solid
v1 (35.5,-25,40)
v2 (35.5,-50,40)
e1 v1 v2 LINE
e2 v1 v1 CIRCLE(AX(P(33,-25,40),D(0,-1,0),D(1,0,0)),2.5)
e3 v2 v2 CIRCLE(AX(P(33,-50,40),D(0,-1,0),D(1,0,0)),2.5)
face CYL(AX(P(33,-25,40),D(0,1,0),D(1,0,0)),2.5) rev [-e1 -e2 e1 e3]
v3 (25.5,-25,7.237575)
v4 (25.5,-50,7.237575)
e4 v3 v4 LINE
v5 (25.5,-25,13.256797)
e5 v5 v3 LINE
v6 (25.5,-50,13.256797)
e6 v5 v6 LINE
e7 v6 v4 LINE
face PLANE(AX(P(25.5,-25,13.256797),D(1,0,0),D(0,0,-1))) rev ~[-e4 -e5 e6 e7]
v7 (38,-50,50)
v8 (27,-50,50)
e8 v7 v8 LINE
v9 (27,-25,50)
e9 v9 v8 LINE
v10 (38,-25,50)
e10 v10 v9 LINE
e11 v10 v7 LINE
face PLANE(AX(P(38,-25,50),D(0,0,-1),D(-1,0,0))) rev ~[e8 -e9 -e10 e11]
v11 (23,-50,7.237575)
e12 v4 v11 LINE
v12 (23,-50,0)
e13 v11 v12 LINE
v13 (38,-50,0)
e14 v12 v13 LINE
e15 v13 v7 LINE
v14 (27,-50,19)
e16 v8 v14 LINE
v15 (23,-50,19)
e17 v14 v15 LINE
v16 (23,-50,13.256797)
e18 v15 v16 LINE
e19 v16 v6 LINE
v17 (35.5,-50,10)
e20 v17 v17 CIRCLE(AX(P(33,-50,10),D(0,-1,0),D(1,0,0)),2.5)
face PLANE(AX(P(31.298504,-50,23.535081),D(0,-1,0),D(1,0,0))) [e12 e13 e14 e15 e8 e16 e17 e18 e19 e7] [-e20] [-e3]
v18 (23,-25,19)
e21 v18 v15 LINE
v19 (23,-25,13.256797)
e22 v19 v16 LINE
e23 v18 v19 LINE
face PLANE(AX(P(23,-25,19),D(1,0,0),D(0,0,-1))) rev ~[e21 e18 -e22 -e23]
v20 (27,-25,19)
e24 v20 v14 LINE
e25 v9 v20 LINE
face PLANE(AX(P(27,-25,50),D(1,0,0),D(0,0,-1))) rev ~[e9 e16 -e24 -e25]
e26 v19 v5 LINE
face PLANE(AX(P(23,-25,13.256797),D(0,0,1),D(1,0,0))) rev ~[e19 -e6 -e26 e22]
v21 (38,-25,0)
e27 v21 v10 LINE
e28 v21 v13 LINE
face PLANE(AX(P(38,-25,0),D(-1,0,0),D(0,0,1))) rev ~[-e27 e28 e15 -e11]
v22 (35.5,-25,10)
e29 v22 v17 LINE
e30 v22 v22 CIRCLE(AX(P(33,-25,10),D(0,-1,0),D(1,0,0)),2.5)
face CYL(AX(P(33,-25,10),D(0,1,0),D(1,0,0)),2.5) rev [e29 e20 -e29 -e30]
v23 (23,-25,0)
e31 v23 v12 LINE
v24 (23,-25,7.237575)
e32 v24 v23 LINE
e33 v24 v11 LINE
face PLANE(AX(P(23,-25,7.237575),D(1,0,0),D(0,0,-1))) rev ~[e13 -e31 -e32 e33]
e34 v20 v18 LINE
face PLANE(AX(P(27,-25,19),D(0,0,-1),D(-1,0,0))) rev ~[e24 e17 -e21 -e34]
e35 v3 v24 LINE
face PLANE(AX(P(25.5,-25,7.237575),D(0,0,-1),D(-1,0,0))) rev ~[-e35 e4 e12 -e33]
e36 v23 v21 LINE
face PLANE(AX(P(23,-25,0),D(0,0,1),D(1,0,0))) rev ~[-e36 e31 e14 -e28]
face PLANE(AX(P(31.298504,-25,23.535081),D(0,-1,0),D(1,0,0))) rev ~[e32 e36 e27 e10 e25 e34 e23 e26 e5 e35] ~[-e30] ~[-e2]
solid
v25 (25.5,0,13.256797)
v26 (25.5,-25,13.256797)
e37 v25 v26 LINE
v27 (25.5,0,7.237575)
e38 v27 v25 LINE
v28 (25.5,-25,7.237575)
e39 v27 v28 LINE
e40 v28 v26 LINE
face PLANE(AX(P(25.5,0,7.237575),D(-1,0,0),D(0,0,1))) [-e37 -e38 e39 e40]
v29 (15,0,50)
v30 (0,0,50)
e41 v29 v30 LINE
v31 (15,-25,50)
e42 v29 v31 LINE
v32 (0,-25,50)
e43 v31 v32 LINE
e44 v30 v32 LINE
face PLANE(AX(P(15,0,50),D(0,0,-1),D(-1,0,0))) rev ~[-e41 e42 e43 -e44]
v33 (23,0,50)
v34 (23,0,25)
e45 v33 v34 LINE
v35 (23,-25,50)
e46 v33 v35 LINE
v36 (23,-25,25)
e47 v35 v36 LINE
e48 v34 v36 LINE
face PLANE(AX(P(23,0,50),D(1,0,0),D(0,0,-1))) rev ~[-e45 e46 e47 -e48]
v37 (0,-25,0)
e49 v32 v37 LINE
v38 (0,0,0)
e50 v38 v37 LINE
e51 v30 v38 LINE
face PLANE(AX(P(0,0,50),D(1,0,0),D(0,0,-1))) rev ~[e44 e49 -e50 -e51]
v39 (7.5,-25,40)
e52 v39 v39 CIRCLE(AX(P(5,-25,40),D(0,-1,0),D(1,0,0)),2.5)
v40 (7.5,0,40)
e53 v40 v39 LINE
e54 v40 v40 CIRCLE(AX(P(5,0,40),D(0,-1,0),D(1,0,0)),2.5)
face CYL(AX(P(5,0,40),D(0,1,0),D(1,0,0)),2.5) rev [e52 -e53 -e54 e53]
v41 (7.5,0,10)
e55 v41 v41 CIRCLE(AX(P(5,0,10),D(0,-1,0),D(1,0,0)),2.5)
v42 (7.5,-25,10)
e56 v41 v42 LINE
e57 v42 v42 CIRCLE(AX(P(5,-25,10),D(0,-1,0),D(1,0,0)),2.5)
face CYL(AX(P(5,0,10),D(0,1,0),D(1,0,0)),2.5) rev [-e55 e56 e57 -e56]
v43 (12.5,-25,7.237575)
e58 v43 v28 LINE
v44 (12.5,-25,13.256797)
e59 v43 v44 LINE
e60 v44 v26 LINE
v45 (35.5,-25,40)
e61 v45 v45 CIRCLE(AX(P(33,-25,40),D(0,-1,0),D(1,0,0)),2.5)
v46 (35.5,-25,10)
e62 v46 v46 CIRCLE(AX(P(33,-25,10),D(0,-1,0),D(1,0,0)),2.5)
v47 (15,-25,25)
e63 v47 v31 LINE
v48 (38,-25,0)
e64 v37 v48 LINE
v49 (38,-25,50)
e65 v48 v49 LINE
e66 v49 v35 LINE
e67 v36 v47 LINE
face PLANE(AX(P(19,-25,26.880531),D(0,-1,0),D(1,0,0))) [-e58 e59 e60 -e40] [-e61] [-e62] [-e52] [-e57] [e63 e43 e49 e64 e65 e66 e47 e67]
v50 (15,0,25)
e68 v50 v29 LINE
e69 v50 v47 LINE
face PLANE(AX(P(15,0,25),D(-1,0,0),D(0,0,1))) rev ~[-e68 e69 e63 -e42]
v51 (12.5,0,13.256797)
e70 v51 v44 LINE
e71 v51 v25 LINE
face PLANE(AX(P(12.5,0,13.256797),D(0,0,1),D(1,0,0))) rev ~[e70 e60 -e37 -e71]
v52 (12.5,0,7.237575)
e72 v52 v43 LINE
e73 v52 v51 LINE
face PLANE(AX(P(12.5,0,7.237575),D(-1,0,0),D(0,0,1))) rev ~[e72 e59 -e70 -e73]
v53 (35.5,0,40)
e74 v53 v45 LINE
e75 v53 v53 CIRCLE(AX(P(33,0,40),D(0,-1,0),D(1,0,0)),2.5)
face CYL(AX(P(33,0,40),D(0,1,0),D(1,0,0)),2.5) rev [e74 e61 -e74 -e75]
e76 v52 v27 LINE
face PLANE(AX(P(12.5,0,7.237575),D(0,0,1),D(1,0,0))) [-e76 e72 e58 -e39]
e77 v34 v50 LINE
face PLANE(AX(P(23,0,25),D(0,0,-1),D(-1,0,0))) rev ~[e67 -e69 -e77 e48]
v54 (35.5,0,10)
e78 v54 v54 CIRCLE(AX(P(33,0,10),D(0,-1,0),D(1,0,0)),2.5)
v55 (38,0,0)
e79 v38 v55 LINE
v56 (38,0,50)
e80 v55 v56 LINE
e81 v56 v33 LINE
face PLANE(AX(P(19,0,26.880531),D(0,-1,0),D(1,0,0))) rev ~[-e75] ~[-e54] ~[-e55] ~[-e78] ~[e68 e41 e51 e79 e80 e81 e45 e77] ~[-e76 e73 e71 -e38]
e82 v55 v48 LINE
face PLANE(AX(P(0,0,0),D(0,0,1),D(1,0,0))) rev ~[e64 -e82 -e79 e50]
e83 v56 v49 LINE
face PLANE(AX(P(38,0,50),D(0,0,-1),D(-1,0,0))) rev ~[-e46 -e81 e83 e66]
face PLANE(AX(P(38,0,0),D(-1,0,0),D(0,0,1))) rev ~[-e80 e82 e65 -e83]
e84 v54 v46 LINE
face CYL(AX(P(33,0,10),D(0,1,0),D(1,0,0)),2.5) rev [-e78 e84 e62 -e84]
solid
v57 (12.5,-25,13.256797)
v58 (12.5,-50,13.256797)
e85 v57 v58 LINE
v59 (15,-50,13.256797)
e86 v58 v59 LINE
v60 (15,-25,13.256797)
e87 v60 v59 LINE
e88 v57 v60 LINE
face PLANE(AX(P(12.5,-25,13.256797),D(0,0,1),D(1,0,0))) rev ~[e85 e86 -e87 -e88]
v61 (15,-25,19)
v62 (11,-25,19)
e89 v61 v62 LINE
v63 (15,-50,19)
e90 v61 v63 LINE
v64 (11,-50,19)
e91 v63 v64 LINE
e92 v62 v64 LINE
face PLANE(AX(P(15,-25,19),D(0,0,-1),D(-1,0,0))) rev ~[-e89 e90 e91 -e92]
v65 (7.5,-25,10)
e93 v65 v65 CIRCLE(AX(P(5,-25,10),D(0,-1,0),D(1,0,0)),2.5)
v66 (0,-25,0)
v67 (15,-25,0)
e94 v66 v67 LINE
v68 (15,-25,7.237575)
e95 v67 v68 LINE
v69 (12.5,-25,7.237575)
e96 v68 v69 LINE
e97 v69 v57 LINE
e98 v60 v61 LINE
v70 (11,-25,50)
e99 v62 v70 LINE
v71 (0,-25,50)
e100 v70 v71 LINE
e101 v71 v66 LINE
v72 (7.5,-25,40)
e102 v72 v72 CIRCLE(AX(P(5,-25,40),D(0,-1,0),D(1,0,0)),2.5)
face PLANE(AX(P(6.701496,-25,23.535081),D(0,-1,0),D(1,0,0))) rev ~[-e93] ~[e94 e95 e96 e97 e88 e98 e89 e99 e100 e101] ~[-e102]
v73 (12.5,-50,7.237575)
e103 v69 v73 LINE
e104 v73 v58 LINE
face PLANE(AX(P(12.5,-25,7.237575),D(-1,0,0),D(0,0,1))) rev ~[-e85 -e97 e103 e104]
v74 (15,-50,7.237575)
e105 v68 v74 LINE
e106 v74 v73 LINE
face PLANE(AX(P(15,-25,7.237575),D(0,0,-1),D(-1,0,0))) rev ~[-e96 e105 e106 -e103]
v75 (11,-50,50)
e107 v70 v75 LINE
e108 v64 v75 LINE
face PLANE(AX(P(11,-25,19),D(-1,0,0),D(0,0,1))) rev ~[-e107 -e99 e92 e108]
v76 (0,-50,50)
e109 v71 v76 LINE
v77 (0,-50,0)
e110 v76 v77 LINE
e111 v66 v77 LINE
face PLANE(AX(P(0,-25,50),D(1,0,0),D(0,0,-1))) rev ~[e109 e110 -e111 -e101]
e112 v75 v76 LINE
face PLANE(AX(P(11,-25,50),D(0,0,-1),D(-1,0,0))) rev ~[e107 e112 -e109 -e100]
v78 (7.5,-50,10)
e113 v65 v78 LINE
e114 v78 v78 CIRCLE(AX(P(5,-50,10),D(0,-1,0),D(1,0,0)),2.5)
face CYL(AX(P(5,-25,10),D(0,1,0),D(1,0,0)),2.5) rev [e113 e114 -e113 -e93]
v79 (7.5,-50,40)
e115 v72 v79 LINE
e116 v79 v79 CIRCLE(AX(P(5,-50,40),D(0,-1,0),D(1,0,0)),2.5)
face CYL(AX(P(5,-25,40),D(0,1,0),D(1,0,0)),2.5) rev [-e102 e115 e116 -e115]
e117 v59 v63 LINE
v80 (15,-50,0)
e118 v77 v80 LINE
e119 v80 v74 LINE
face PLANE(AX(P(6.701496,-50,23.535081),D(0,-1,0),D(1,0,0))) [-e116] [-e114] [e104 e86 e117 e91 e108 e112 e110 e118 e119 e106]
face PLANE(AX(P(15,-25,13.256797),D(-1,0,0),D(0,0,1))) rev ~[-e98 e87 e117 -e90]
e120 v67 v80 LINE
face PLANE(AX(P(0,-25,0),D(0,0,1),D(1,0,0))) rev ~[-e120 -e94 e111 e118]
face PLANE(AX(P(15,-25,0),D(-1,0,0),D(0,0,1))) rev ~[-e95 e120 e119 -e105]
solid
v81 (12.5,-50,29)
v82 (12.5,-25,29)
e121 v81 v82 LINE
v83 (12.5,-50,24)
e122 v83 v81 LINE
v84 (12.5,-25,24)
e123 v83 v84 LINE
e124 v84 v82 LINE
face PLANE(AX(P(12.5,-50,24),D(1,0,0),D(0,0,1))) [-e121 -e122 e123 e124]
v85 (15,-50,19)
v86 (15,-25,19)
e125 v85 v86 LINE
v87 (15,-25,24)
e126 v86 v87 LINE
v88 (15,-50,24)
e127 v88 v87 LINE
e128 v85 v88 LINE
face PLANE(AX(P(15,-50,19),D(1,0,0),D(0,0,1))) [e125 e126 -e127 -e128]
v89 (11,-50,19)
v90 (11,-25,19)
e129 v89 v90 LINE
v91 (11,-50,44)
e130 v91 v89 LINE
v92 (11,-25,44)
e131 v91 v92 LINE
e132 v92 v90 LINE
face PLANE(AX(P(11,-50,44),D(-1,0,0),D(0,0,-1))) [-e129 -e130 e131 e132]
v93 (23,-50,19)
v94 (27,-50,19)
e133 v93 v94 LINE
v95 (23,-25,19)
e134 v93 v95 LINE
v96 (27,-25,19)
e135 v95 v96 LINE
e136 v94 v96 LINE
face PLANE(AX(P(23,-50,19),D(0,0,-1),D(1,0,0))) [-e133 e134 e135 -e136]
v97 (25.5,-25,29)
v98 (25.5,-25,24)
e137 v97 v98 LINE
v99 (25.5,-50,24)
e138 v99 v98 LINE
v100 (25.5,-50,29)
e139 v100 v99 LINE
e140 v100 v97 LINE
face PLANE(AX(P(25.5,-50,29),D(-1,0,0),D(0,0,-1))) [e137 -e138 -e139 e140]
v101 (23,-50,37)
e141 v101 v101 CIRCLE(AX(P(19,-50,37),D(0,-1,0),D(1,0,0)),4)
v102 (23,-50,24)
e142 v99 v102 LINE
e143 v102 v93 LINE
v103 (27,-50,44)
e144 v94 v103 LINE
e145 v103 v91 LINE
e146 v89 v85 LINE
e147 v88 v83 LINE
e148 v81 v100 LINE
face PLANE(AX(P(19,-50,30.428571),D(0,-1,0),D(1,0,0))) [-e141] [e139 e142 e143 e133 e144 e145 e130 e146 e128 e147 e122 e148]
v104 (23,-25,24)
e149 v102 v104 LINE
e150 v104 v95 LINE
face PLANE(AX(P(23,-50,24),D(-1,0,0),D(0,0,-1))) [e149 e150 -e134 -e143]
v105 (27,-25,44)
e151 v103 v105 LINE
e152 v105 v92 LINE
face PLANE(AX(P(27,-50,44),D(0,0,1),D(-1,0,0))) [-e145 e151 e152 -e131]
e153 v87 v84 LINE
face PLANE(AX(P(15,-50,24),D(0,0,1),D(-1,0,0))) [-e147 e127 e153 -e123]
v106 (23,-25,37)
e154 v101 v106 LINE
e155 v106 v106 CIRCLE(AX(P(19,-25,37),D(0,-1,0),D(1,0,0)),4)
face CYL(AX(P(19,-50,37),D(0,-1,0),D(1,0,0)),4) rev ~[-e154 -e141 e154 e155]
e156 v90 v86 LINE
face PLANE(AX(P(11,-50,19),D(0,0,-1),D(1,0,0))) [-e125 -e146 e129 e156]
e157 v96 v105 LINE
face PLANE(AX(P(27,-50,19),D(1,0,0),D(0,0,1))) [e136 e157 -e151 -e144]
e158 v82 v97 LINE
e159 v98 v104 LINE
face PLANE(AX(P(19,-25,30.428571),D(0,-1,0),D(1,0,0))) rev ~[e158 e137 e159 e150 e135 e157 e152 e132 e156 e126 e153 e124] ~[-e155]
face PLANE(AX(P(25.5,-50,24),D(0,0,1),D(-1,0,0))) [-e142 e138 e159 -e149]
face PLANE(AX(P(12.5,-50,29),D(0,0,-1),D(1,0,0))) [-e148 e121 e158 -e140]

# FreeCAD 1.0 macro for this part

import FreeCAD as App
import Part
import Sketcher
Q = App.Units.Quantity


def add_polygon(sketch, points):
    """Adds a closed chain of lines whose ends are joined by coincident constraints."""
    first, n = sketch.GeometryCount, len(points)
    for a, b in zip(points, points[1:] + points[:1]):
        sketch.addGeometry(Part.LineSegment(App.Vector(*a, 0), App.Vector(*b, 0)), False)
    for i in range(n):
        sketch.addConstraint(Sketcher.Constraint("Coincident", first + i, 2, first + (i + 1) % n, 1))

doc = App.newDocument("Part")
body = doc.addObject("PartDesign::Body", "Body")

# Sketch on XZ plane
sketch1 = body.newObject("Sketcher::SketchObject", "Sketch")
sketch1.AttachmentSupport = (doc.getObject("XZ_Plane"), [""])
sketch1.MapMode = "FlatFace"
add_polygon(sketch1, [(0, 50), (0, 0), (38, 0), (38, 50), (23, 50), (23, 25), (15, 25), (15, 50)])  # lines 0-7
sketch1.addGeometry(Part.Circle(App.Vector(5, 10, 0), App.Vector(0, 0, 1), 2.5), False)  # 8
add_polygon(sketch1, [(25.5, 7.2), (12.5, 7.2), (12.5, 13.3), (25.5, 13.3)])  # lines 9-12
sketch1.addGeometry(Part.Circle(App.Vector(33, 10, 0), App.Vector(0, 0, 1), 2.5), False)  # 13
sketch1.addGeometry(Part.Circle(App.Vector(5, 40, 0), App.Vector(0, 0, 1), 2.5), False)  # 14
sketch1.addGeometry(Part.Circle(App.Vector(33, 40, 0), App.Vector(0, 0, 1), 2.5), False)  # 15
sketch1.addConstraint(Sketcher.Constraint("Vertical", 0))
sketch1.addConstraint(Sketcher.Constraint("Horizontal", 1))
sketch1.addConstraint(Sketcher.Constraint("Vertical", 2))
sketch1.addConstraint(Sketcher.Constraint("Horizontal", 3))
sketch1.addConstraint(Sketcher.Constraint("Vertical", 4))
sketch1.addConstraint(Sketcher.Constraint("Horizontal", 5))
sketch1.addConstraint(Sketcher.Constraint("Vertical", 6))
sketch1.addConstraint(Sketcher.Constraint("Horizontal", 7))
sketch1.addConstraint(Sketcher.Constraint("Horizontal", 9))
sketch1.addConstraint(Sketcher.Constraint("Vertical", 10))
sketch1.addConstraint(Sketcher.Constraint("Horizontal", 11))
sketch1.addConstraint(Sketcher.Constraint("Vertical", 12))
sketch1.addConstraint(Sketcher.Constraint("Coincident", 0, 2, -1, 1))
sketch1.addConstraint(Sketcher.Constraint("Equal", 8, 13))
sketch1.addConstraint(Sketcher.Constraint("Equal", 13, 14))
sketch1.addConstraint(Sketcher.Constraint("Equal", 14, 15))
sketch1.addConstraint(Sketcher.Constraint("Horizontal", 8, 3, 13, 3))
sketch1.addConstraint(Sketcher.Constraint("Horizontal", 14, 3, 15, 3))
sketch1.addConstraint(Sketcher.Constraint("Horizontal", 3, 2, 6, 2))
sketch1.addConstraint(Sketcher.Constraint("Vertical", 8, 3, 14, 3))
sketch1.addConstraint(Sketcher.Constraint("Vertical", 13, 3, 15, 3))
sketch1.addConstraint(Sketcher.Constraint("Equal", 3, 7))
sketch1.addConstraint(Sketcher.Constraint("Diameter", 8, Q("5 mm")))
sketch1.addConstraint(Sketcher.Constraint("DistanceX", 1, 1, 1, 2, Q("38 mm")))
sketch1.addConstraint(Sketcher.Constraint("DistanceX", 3, 2, 3, 1, Q("15 mm")))
sketch1.addConstraint(Sketcher.Constraint("DistanceX", 9, 2, 9, 1, Q("13 mm")))
sketch1.addConstraint(Sketcher.Constraint("DistanceY", 0, 2, 0, 1, Q("50 mm")))
sketch1.addConstraint(Sketcher.Constraint("DistanceY", 4, 2, 4, 1, Q("25 mm")))
sketch1.addConstraint(Sketcher.Constraint("DistanceX", -1, 1, 8, 3, Q("5 mm")))
sketch1.addConstraint(Sketcher.Constraint("DistanceY", -1, 1, 8, 3, Q("10 mm")))
sketch1.addConstraint(Sketcher.Constraint("DistanceX", -1, 1, 13, 3, Q("33 mm")))
sketch1.addConstraint(Sketcher.Constraint("DistanceY", -1, 1, 14, 3, Q("40 mm")))
sketch1.addConstraint(Sketcher.Constraint("DistanceX", -1, 1, 9, 2, Q("12.5 mm")))
sketch1.addConstraint(Sketcher.Constraint("DistanceY", 10, 1, 10, 2, Q("6.019222 mm")))
sketch1.addConstraint(Sketcher.Constraint("DistanceY", -1, 1, 9, 2, Q("7.237575 mm")))
pad1 = body.newObject("PartDesign::Pad", "Pad")
pad1.Profile = sketch1
pad1.Length = 25
body2 = doc.addObject("PartDesign::Body", "Body001")
body2.AllowCompound = True

# Sketch on XZ plane
sketch2 = body2.newObject("Sketcher::SketchObject", "Sketch001")
sketch2.AttachmentSupport = (doc.getObject("XZ_Plane001"), [""])
sketch2.MapMode = "FlatFace"
sketch2.AttachmentOffset = App.Placement(App.Vector(0, 0, 25), App.Rotation())
add_polygon(sketch2, [(11, 19), (11, 50), (0, 50), (0, 0), (15, 0), (15, 7.2), (12.5, 7.2), (12.5, 13.3), (15, 13.3), (15, 19)])  # lines 0-9
sketch2.addGeometry(Part.Circle(App.Vector(5, 10, 0), App.Vector(0, 0, 1), 2.5), False)  # 10
sketch2.addGeometry(Part.Circle(App.Vector(5, 40, 0), App.Vector(0, 0, 1), 2.5), False)  # 11
add_polygon(sketch2, [(38, 0), (38, 50), (27, 50), (27, 19), (23, 19), (23, 13.3), (25.5, 13.3), (25.5, 7.2), (23, 7.2), (23, 0)])  # lines 12-21
sketch2.addGeometry(Part.Circle(App.Vector(33, 10, 0), App.Vector(0, 0, 1), 2.5), False)  # 22
sketch2.addGeometry(Part.Circle(App.Vector(33, 40, 0), App.Vector(0, 0, 1), 2.5), False)  # 23
sketch2.addConstraint(Sketcher.Constraint("Vertical", 0))
sketch2.addConstraint(Sketcher.Constraint("Horizontal", 1))
sketch2.addConstraint(Sketcher.Constraint("Vertical", 2))
sketch2.addConstraint(Sketcher.Constraint("Horizontal", 3))
sketch2.addConstraint(Sketcher.Constraint("Vertical", 4))
sketch2.addConstraint(Sketcher.Constraint("Horizontal", 5))
sketch2.addConstraint(Sketcher.Constraint("Vertical", 6))
sketch2.addConstraint(Sketcher.Constraint("Horizontal", 7))
sketch2.addConstraint(Sketcher.Constraint("Vertical", 8))
sketch2.addConstraint(Sketcher.Constraint("Horizontal", 9))
sketch2.addConstraint(Sketcher.Constraint("Vertical", 12))
sketch2.addConstraint(Sketcher.Constraint("Horizontal", 13))
sketch2.addConstraint(Sketcher.Constraint("Vertical", 14))
sketch2.addConstraint(Sketcher.Constraint("Horizontal", 15))
sketch2.addConstraint(Sketcher.Constraint("Vertical", 16))
sketch2.addConstraint(Sketcher.Constraint("Horizontal", 17))
sketch2.addConstraint(Sketcher.Constraint("Vertical", 18))
sketch2.addConstraint(Sketcher.Constraint("Horizontal", 19))
sketch2.addConstraint(Sketcher.Constraint("Vertical", 20))
sketch2.addConstraint(Sketcher.Constraint("Horizontal", 21))
sketch2.addConstraint(Sketcher.Constraint("Coincident", 2, 2, -1, 1))
sketch2.addConstraint(Sketcher.Constraint("Equal", 10, 11))
sketch2.addConstraint(Sketcher.Constraint("Equal", 11, 22))
sketch2.addConstraint(Sketcher.Constraint("Equal", 22, 23))
sketch2.addConstraint(Sketcher.Constraint("PointOnObject", 20, 2, -1))
sketch2.addConstraint(Sketcher.Constraint("Horizontal", 10, 3, 22, 3))
sketch2.addConstraint(Sketcher.Constraint("Horizontal", 11, 3, 23, 3))
sketch2.addConstraint(Sketcher.Constraint("Horizontal", 1, 2, 12, 2))
sketch2.addConstraint(Sketcher.Constraint("Horizontal", 9, 2, 14, 2))
sketch2.addConstraint(Sketcher.Constraint("Horizontal", 7, 2, 16, 2))
sketch2.addConstraint(Sketcher.Constraint("Horizontal", 5, 2, 18, 2))
sketch2.addConstraint(Sketcher.Constraint("Vertical", 10, 3, 11, 3))
sketch2.addConstraint(Sketcher.Constraint("Vertical", 22, 3, 23, 3))
sketch2.addConstraint(Sketcher.Constraint("Vertical", 4, 2, 7, 2))
sketch2.addConstraint(Sketcher.Constraint("Vertical", 16, 2, 19, 2))
sketch2.addConstraint(Sketcher.Constraint("Equal", 1, 13))
sketch2.addConstraint(Sketcher.Constraint("Equal", 9, 15))
sketch2.addConstraint(Sketcher.Constraint("Equal", 7, 17))
sketch2.addConstraint(Sketcher.Constraint("Diameter", 10, Q("5 mm")))
sketch2.addConstraint(Sketcher.Constraint("DistanceX", 1, 2, 1, 1, Q("11 mm")))
sketch2.addConstraint(Sketcher.Constraint("DistanceX", 3, 1, 3, 2, Q("15 mm")))
sketch2.addConstraint(Sketcher.Constraint("DistanceY", 0, 1, 0, 2, Q("31 mm")))
sketch2.addConstraint(Sketcher.Constraint("DistanceY", 2, 2, 2, 1, Q("50 mm")))
sketch2.addConstraint(Sketcher.Constraint("DistanceX", 5, 2, 5, 1, Q("2.5 mm")))
sketch2.addConstraint(Sketcher.Constraint("DistanceX", -1, 1, 10, 3, Q("5 mm")))
sketch2.addConstraint(Sketcher.Constraint("DistanceY", -1, 1, 10, 3, Q("10 mm")))
sketch2.addConstraint(Sketcher.Constraint("DistanceY", -1, 1, 11, 3, Q("40 mm")))
sketch2.addConstraint(Sketcher.Constraint("DistanceX", -1, 1, 22, 3, Q("33 mm")))
sketch2.addConstraint(Sketcher.Constraint("DistanceX", -1, 1, 12, 2, Q("38 mm")))
sketch2.addConstraint(Sketcher.Constraint("DistanceY", 4, 1, 4, 2, Q("7.237575 mm")))
sketch2.addConstraint(Sketcher.Constraint("DistanceY", 6, 1, 6, 2, Q("6.019222 mm")))
pad2 = body2.newObject("PartDesign::Pad", "Pad001")
pad2.Profile = sketch2
pad2.Length = 25
body3 = doc.addObject("PartDesign::Body", "Body002")

# Sketch on XZ plane
sketch3 = body3.newObject("Sketcher::SketchObject", "Sketch002")
sketch3.AttachmentSupport = (doc.getObject("XZ_Plane002"), [""])
sketch3.MapMode = "FlatFace"
sketch3.AttachmentOffset = App.Placement(App.Vector(0, 0, 50), App.Rotation())
add_polygon(sketch3, [(23, 19), (27, 19), (27, 44), (11, 44), (11, 19), (15, 19), (15, 24), (12.5, 24), (12.5, 29), (25.5, 29), (25.5, 24), (23, 24)])  # lines 0-11
sketch3.addGeometry(Part.Circle(App.Vector(19, 37, 0), App.Vector(0, 0, 1), 4), False)  # 12
sketch3.addConstraint(Sketcher.Constraint("Horizontal", 0))
sketch3.addConstraint(Sketcher.Constraint("Vertical", 1))
sketch3.addConstraint(Sketcher.Constraint("Horizontal", 2))
sketch3.addConstraint(Sketcher.Constraint("Vertical", 3))
sketch3.addConstraint(Sketcher.Constraint("Horizontal", 4))
sketch3.addConstraint(Sketcher.Constraint("Vertical", 5))
sketch3.addConstraint(Sketcher.Constraint("Horizontal", 6))
sketch3.addConstraint(Sketcher.Constraint("Vertical", 7))
sketch3.addConstraint(Sketcher.Constraint("Horizontal", 8))
sketch3.addConstraint(Sketcher.Constraint("Vertical", 9))
sketch3.addConstraint(Sketcher.Constraint("Horizontal", 10))
sketch3.addConstraint(Sketcher.Constraint("Vertical", 11))
sketch3.addConstraint(Sketcher.Constraint("Horizontal", 0, 2, 3, 2))
sketch3.addConstraint(Sketcher.Constraint("Horizontal", 6, 2, 9, 2))
sketch3.addConstraint(Sketcher.Constraint("Equal", 0, 4))
sketch3.addConstraint(Sketcher.Constraint("Equal", 6, 10))
sketch3.addConstraint(Sketcher.Constraint("Equal", 5, 7))
sketch3.addConstraint(Sketcher.Constraint("Diameter", 12, Q("8 mm")))
sketch3.addConstraint(Sketcher.Constraint("DistanceX", 0, 1, 0, 2, Q("4 mm")))
sketch3.addConstraint(Sketcher.Constraint("DistanceX", 2, 2, 2, 1, Q("16 mm")))
sketch3.addConstraint(Sketcher.Constraint("DistanceX", 8, 1, 8, 2, Q("13 mm")))
sketch3.addConstraint(Sketcher.Constraint("DistanceY", 1, 1, 1, 2, Q("25 mm")))
sketch3.addConstraint(Sketcher.Constraint("DistanceY", 5, 1, 5, 2, Q("5 mm")))
sketch3.addConstraint(Sketcher.Constraint("DistanceX", -1, 1, 12, 3, Q("19 mm")))
sketch3.addConstraint(Sketcher.Constraint("DistanceY", -1, 1, 12, 3, Q("37 mm")))
sketch3.addConstraint(Sketcher.Constraint("DistanceX", -1, 1, 0, 2, Q("27 mm")))
sketch3.addConstraint(Sketcher.Constraint("DistanceY", -1, 1, 0, 2, Q("19 mm")))
pad3 = body3.newObject("PartDesign::Pad", "Pad002")
pad3.Profile = sketch3
pad3.Length = 25
pad3.Reversed = True

doc.recompute()
